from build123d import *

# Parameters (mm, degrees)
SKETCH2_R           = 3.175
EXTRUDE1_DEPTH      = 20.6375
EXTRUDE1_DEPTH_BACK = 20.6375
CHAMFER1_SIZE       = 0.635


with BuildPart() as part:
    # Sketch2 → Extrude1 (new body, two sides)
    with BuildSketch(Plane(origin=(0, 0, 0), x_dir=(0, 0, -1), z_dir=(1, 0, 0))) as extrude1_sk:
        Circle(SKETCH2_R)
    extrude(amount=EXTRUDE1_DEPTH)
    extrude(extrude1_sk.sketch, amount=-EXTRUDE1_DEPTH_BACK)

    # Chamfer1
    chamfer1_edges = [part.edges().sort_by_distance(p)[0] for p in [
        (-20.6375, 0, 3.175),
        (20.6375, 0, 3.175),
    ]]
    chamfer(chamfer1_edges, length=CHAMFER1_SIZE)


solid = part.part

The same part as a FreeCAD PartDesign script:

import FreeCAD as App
import Part
import Sketcher

V = App.Vector
Q = App.Units.Quantity


def edges_at(feature, points):
    """Names of the edges that pass closest to the given points."""
    edges = feature.Shape.Edges
    near = lambda p: min(range(len(edges)), key=lambda i: edges[i].distToShape(Part.Vertex(*p))[0])
    return sorted({f"Edge{near(p) + 1}" for p in points})

doc = App.newDocument("Part")
body = doc.addObject("PartDesign::Body", "Body")

sketch1 = body.newObject("Sketcher::SketchObject", "Sketch")
sketch1.AttachmentSupport = (doc.getObject("YZ_Plane"), [""])
sketch1.MapMode = "FlatFace"
sketch1.addGeometry(Part.Circle(V(0, 0, 0), V(0, 0, 1), 3.2), False)
sketch1.addConstraint(Sketcher.Constraint("Coincident", 0, 3, -1, 1))
sketch1.addConstraint(Sketcher.Constraint("Diameter", 0, Q("0.25 in")))
pad1 = body.newObject("PartDesign::Pad", "Pad")
pad1.Profile = sketch1
pad1.Type = "TwoLengths"
pad1.Length = Q("0.8125 in")
pad1.Length2 = Q("0.8125 in")
doc.recompute()

chamfer = body.newObject("PartDesign::Chamfer", "Chamfer")
chamfer.Base = (pad1, edges_at(pad1, [(-20.637, 0, 3.175), (20.637, 0, 3.175)]))
chamfer.Size = Q("0.025 in")

doc.recompute()
